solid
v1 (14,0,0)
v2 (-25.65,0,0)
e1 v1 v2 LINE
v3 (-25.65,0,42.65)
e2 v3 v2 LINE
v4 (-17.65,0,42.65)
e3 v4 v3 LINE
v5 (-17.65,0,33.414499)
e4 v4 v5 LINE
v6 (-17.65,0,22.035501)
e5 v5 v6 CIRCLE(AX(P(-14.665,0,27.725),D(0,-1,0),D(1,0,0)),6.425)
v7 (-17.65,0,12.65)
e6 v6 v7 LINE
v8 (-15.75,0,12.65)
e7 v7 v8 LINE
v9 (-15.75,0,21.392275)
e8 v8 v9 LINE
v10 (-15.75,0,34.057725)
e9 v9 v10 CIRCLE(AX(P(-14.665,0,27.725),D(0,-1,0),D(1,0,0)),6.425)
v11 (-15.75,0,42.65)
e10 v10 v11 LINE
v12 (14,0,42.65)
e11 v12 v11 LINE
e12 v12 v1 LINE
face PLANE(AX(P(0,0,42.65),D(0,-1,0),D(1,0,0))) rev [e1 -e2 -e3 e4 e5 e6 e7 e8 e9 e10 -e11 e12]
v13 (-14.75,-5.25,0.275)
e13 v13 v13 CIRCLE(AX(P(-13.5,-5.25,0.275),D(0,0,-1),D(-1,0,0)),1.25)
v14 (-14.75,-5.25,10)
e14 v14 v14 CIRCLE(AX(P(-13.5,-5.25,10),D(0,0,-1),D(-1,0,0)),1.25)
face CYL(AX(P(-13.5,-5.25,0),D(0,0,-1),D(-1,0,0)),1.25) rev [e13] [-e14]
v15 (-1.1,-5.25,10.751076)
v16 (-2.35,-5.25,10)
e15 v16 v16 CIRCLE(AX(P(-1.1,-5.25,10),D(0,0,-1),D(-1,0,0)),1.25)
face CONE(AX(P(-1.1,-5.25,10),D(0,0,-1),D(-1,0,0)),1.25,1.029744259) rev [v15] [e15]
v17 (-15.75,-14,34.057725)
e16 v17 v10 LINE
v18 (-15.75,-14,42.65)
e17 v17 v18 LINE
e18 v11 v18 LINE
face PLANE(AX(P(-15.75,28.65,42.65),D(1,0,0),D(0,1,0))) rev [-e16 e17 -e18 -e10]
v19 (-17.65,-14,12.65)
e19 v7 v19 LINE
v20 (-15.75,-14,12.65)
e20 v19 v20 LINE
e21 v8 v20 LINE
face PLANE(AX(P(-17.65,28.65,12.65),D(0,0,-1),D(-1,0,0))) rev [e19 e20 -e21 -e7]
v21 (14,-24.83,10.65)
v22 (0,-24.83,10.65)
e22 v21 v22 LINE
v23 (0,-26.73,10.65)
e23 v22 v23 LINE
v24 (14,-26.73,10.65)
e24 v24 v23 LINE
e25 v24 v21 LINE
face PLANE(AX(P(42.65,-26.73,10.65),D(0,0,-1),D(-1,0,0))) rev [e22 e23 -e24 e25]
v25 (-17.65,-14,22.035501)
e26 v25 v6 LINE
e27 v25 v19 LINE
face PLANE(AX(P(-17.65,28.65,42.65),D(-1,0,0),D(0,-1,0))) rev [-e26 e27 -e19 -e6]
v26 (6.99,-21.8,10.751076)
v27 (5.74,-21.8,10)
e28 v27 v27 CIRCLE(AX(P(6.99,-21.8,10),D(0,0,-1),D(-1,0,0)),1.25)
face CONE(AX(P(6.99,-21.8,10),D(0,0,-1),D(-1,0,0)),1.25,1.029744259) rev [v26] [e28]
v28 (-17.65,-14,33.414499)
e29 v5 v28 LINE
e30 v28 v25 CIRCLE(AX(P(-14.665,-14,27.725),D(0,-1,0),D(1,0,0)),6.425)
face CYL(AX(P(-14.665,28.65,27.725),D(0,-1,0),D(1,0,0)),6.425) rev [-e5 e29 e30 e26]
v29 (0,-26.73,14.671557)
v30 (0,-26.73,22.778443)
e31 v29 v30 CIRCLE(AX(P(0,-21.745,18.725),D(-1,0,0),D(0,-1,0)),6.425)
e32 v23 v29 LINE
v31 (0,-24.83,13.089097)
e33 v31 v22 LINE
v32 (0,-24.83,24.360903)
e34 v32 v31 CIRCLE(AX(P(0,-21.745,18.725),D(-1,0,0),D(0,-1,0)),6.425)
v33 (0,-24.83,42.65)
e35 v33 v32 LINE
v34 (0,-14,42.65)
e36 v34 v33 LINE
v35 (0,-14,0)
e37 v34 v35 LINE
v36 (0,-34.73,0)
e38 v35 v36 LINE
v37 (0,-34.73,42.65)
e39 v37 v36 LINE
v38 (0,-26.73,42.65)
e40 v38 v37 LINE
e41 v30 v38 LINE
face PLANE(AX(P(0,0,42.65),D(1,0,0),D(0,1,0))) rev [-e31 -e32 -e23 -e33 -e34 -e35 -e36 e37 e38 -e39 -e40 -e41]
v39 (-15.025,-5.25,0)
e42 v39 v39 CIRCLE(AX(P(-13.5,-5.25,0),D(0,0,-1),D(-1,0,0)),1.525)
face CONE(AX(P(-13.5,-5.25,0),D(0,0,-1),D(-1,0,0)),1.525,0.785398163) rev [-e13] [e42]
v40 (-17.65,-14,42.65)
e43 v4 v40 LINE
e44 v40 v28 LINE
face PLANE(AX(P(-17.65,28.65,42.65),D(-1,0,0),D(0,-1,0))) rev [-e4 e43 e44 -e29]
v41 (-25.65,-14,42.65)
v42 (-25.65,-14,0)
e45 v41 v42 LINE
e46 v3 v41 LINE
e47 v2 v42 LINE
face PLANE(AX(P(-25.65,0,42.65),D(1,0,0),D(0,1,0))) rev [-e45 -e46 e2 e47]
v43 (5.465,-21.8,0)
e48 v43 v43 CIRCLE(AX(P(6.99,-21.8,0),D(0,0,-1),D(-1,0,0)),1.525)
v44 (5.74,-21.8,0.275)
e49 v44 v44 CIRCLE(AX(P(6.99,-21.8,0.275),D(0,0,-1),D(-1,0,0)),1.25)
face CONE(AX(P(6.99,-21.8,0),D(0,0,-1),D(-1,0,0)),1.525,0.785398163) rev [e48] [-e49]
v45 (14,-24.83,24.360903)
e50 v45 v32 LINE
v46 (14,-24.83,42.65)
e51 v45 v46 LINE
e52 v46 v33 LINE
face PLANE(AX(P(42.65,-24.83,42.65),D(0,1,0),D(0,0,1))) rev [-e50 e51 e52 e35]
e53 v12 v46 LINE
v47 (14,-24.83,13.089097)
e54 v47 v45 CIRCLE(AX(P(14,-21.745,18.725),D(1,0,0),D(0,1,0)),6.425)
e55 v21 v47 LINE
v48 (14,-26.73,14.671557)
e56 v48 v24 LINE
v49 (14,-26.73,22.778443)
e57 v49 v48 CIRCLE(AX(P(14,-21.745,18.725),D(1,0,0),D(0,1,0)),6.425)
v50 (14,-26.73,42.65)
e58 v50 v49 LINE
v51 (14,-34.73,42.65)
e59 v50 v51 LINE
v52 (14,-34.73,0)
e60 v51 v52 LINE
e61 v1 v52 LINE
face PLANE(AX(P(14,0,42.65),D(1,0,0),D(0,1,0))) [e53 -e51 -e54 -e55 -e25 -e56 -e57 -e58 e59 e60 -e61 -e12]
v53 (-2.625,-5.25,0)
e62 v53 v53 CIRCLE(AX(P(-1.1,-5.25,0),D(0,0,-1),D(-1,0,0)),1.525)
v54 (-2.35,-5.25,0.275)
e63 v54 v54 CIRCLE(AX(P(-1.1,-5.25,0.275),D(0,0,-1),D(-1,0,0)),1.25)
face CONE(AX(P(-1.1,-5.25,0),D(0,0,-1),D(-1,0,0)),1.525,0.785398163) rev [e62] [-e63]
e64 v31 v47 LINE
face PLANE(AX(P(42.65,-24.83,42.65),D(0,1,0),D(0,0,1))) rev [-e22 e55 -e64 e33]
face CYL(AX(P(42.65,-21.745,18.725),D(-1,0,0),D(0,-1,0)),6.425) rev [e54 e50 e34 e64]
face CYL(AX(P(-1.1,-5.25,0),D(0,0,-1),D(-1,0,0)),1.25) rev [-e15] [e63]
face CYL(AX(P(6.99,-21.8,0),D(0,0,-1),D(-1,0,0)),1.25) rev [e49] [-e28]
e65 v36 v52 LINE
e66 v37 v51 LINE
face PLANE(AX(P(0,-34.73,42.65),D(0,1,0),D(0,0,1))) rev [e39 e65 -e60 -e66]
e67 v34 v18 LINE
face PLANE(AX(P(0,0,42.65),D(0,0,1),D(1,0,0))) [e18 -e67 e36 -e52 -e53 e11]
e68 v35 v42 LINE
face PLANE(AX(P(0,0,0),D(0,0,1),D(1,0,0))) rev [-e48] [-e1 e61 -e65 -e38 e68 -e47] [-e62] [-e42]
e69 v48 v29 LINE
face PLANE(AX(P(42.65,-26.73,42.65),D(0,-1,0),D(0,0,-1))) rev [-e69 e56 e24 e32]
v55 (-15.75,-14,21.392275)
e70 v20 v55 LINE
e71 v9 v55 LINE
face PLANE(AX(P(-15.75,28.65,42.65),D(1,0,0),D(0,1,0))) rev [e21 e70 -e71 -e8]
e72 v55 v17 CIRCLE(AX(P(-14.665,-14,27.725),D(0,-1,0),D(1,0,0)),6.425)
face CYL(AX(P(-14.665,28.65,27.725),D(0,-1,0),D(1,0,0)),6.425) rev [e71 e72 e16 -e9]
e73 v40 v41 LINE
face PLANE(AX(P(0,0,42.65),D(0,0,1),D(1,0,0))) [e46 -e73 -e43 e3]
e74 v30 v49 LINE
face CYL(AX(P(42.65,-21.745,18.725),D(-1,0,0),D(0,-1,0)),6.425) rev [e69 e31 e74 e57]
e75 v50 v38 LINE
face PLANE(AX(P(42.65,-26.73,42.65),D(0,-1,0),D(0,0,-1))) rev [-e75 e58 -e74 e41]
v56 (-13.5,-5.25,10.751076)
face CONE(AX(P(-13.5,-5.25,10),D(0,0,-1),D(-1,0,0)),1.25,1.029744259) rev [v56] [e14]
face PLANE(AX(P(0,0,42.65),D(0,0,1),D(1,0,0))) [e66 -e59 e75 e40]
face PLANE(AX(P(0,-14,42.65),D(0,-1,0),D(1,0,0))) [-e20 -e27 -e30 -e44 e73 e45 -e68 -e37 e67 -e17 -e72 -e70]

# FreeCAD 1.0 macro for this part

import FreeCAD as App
import Part
import Sketcher

V = App.Vector


def add_polygon(sketch, points):
    """Adds a closed chain of lines whose ends are joined by coincident constraints."""
    first, n = sketch.GeometryCount, len(points)
    for a, b in zip(points, points[1:] + points[:1]):
        sketch.addGeometry(Part.LineSegment(App.Vector(*a, 0), App.Vector(*b, 0)), False)
    for i in range(n):
        sketch.addConstraint(Sketcher.Constraint("Coincident", first + i, 2, first + (i + 1) % n, 1))

doc = App.newDocument("Part")
body = doc.addObject("PartDesign::Body", "Body")

# Sketch on XY plane
sketch1 = body.newObject("Sketcher::SketchObject", "Sketch")
sketch1.AttachmentSupport = (doc.getObject("XY_Plane"), [""])
sketch1.MapMode = "FlatFace"
add_polygon(sketch1, [(-26, 0), (-26, -14), (0, -14), (0, -35), (14, -35), (14, 0)])  # lines 0-5
sketch1.addConstraint([
    Sketcher.Constraint("Vertical", 0),
    Sketcher.Constraint("Horizontal", 1),
    Sketcher.Constraint("Vertical", 2),
    Sketcher.Constraint("Horizontal", 3),
    Sketcher.Constraint("Vertical", 4),
    Sketcher.Constraint("Horizontal", 5),
    Sketcher.Constraint("PointOnObject", 1, 2, -2),
    Sketcher.Constraint("PointOnObject", 4, 2, -1),
    Sketcher.Constraint("Equal", 3, 0),
    Sketcher.Constraint("DistanceX", 3, 1, 3, 2, 14.0),
    Sketcher.Constraint("DistanceX", 1, 1, 1, 2, 25.65),
    Sketcher.Constraint("DistanceY", 2, 2, 2, 1, 20.73),
])
pad1 = body.newObject("PartDesign::Pad", "Pad")
pad1.Profile = sketch1
pad1.Length = 42.65

# Sketch on XZ plane
sketch2 = body.newObject("Sketcher::SketchObject", "Sketch001")
sketch2.AttachmentSupport = (doc.getObject("XZ_Plane"), [""])
sketch2.MapMode = "FlatFace"
sketch2.AttachmentOffset = App.Placement(V(0, 0, 14), App.Rotation())
sketch2.addGeometry(Part.Circle(V(-15, 28, 0), V(0, 0, 1), 6), False)
sketch2.addConstraint([
    Sketcher.Constraint("Diameter", 0, 12.85),
    Sketcher.Constraint("DistanceX", 0, 3, -1, 1, 14.665),
    Sketcher.Constraint("DistanceY", -1, 1, 0, 3, 27.725),
])
pocket1 = body.newObject("PartDesign::Pocket", "Pocket")
pocket1.Profile = sketch2
pocket1.Length = 42.65

# Sketch on XZ plane
sketch3 = body.newObject("Sketcher::SketchObject", "Sketch002")
sketch3.AttachmentSupport = (doc.getObject("XZ_Plane"), [""])
sketch3.MapMode = "FlatFace"
sketch3.AttachmentOffset = App.Placement(V(0, 0, 14), App.Rotation())
add_polygon(sketch3, [(-17.6, 42.6), (-17.6, 12.7), (-15.8, 12.7), (-15.8, 42.6)])  # lines 0-3
sketch3.addConstraint([
    Sketcher.Constraint("Vertical", 0),
    Sketcher.Constraint("Horizontal", 1),
    Sketcher.Constraint("Vertical", 2),
    Sketcher.Constraint("Horizontal", 3),
    Sketcher.Constraint("DistanceY", 0, 2, 0, 1, 30.0),
    Sketcher.Constraint("DistanceX", 1, 1, 1, 2, 1.9),
    Sketcher.Constraint("DistanceX", 0, 2, -1, 1, 17.65),
    Sketcher.Constraint("DistanceY", -1, 1, 0, 2, 12.65),
])
pocket2 = body.newObject("PartDesign::Pocket", "Pocket001")
pocket2.Profile = sketch3
pocket2.Length = 42.65

# Sketch on YZ plane
sketch4 = body.newObject("Sketcher::SketchObject", "Sketch003")
sketch4.AttachmentSupport = (doc.getObject("YZ_Plane"), [""])
sketch4.MapMode = "FlatFace"
sketch4.addGeometry(Part.Circle(V(-22, 19, 0), V(0, 0, 1), 6), False)
sketch4.addConstraint([
    Sketcher.Constraint("Diameter", 0, 12.85),
    Sketcher.Constraint("DistanceX", 0, 3, -1, 1, 21.745),
    Sketcher.Constraint("DistanceY", -1, 1, 0, 3, 18.725),
])
pocket3 = body.newObject("PartDesign::Pocket", "Pocket002")
pocket3.Profile = sketch4
pocket3.Length = 42.65
pocket3.Reversed = True

# Sketch on YZ plane
sketch5 = body.newObject("Sketcher::SketchObject", "Sketch004")
sketch5.AttachmentSupport = (doc.getObject("YZ_Plane"), [""])
sketch5.MapMode = "FlatFace"
add_polygon(sketch5, [(-24.8, 10.7), (-26.7, 10.7), (-26.7, 42.6), (-24.8, 42.6)])  # lines 0-3
sketch5.addConstraint([
    Sketcher.Constraint("Horizontal", 0),
    Sketcher.Constraint("Vertical", 1),
    Sketcher.Constraint("Horizontal", 2),
    Sketcher.Constraint("Vertical", 3),
    Sketcher.Constraint("DistanceY", 1, 1, 1, 2, 32.0),
    Sketcher.Constraint("DistanceX", 0, 2, 0, 1, 1.9),
    Sketcher.Constraint("DistanceX", 0, 2, -1, 1, 26.73),
    Sketcher.Constraint("DistanceY", -1, 1, 0, 2, 10.65),
])
pocket4 = body.newObject("PartDesign::Pocket", "Pocket003")
pocket4.Profile = sketch5
pocket4.Length = 42.65
pocket4.Reversed = True

# Sketch on XY plane
sketch6 = body.newObject("Sketcher::SketchObject", "Sketch005")
sketch6.AttachmentSupport = (doc.getObject("XY_Plane"), [""])
sketch6.MapMode = "FlatFace"
sketch6.addGeometry([
    Part.Circle(V(-1.1, -5.2, 0), V(0, 0, 1), 1.2),
    Part.Circle(V(-13.5, -5.2, 0), V(0, 0, 1), 1.2),
    Part.Circle(V(7, -21.8, 0), V(0, 0, 1), 1.2),
], False)
sketch6.addConstraint([
    Sketcher.Constraint("Equal", 0, 1),
    Sketcher.Constraint("Equal", 1, 2),
    Sketcher.Constraint("Horizontal", 0, 3, 1, 3),
    Sketcher.Constraint("Diameter", 0, 2.5),
    Sketcher.Constraint("DistanceX", 0, 3, -1, 1, 1.1),
    Sketcher.Constraint("DistanceX", 1, 3, -1, 1, 13.5),
    Sketcher.Constraint("DistanceY", 2, 3, -1, 1, 21.8),
    Sketcher.Constraint("DistanceY", 0, 3, -1, 1, 5.25),
    Sketcher.Constraint("DistanceX", -1, 1, 2, 3, 6.99),
])
doc.recompute()
hole = body.newObject("PartDesign::Hole", "Hole")
hole.Profile = sketch6
hole.ThreadType = "None"
hole.Diameter = 2.5
hole.DepthType = "Dimension"
hole.Depth = 10
hole.DrillPoint = "Angled"
hole.DrillPointAngle = 118
hole.HoleCutType = "Countersink"
hole.HoleCutDiameter = 3.05
hole.HoleCutCountersinkAngle = 90
hole.Reversed = True

doc.recompute()
